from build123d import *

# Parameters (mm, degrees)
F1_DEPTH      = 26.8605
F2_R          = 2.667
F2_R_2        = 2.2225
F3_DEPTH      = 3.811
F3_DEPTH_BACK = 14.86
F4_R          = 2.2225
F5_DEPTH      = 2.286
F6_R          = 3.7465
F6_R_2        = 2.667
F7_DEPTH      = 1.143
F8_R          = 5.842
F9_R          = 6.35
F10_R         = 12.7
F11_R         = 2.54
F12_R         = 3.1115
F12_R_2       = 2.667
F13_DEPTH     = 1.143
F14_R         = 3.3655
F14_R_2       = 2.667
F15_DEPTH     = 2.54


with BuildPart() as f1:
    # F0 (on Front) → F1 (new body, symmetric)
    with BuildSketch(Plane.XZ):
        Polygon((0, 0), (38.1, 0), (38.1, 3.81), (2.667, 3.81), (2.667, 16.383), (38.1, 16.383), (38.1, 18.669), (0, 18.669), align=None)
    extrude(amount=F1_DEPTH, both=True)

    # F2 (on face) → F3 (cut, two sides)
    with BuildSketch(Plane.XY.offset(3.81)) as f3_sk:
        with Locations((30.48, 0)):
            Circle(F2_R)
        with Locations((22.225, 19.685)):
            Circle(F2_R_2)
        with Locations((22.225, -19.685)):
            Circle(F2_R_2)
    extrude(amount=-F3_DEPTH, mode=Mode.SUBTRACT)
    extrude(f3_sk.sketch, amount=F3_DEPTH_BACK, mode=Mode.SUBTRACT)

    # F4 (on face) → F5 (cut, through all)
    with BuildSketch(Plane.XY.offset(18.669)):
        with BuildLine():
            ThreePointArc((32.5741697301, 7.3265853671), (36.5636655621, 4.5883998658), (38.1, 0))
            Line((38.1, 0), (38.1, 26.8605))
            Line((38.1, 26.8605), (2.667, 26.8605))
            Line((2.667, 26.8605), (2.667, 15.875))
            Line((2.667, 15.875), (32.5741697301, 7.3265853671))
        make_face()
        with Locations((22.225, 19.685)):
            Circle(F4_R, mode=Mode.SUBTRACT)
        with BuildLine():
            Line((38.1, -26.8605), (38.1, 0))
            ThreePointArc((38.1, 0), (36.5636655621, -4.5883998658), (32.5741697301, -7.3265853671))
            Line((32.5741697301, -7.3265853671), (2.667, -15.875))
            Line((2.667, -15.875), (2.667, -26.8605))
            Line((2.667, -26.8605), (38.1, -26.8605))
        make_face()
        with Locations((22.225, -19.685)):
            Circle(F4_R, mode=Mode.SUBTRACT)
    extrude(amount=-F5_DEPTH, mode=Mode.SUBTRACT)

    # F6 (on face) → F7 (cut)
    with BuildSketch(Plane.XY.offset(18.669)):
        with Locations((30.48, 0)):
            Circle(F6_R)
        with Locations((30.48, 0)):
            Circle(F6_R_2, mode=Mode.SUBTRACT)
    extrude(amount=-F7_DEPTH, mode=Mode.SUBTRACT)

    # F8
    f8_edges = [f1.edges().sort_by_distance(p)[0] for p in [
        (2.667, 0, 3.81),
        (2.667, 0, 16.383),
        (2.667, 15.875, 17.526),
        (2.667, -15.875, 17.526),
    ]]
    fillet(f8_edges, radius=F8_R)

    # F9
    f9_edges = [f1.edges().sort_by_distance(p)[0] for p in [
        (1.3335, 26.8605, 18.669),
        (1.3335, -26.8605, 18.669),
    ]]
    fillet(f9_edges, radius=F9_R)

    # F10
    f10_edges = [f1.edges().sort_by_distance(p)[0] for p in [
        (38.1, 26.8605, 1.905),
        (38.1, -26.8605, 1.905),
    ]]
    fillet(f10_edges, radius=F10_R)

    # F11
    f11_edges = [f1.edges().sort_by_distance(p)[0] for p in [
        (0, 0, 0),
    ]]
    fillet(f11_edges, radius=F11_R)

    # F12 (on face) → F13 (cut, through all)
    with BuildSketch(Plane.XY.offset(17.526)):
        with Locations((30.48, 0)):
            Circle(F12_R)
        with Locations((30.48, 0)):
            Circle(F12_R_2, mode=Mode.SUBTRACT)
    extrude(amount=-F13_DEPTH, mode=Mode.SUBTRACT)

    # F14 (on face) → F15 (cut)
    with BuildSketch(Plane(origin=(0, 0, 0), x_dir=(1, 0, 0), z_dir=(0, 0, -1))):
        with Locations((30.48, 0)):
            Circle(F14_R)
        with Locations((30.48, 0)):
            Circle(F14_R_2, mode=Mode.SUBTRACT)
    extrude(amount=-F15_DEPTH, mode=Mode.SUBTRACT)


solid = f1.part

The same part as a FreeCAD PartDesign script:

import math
import FreeCAD as App
import Part
import Sketcher

V = App.Vector
Q = App.Units.Quantity


def edges_at(feature, points):
    """Names of the edges that pass closest to the given points."""
    edges = feature.Shape.Edges
    near = lambda p: min(range(len(edges)), key=lambda i: edges[i].distToShape(Part.Vertex(*p))[0])
    return sorted({f"Edge{near(p) + 1}" for p in points})

doc = App.newDocument("Part")
body = doc.addObject("PartDesign::Body", "Body")

sketch1 = body.newObject("Sketcher::SketchObject", "Sketch")
sketch1.AttachmentSupport = (doc.getObject("XZ_Plane"), [""])
sketch1.MapMode = "FlatFace"
sketch1.addGeometry([
    Part.LineSegment(V(0, 0, 0), V(38.1, 0, 0)),
    Part.LineSegment(V(38.1, 0, 0), V(38.1, 3.81, 0)),
    Part.LineSegment(V(38.1, 3.81, 0), V(2.667, 3.81, 0)),
    Part.LineSegment(V(2.667, 3.81, 0), V(2.667, 16.383, 0)),
    Part.LineSegment(V(2.667, 16.383, 0), V(38.1, 16.383, 0)),
    Part.LineSegment(V(38.1, 16.383, 0), V(38.1, 18.669, 0)),
    Part.LineSegment(V(38.1, 18.669, 0), V(0, 18.669, 0)),
    Part.LineSegment(V(0, 18.669, 0), V(0, 0, 0)),
], False)
sketch1.addConstraint([
    Sketcher.Constraint("Coincident", 0, 2, 1, 1),
    Sketcher.Constraint("Coincident", 1, 2, 2, 1),
    Sketcher.Constraint("Coincident", 2, 2, 3, 1),
    Sketcher.Constraint("Coincident", 3, 2, 4, 1),
    Sketcher.Constraint("Coincident", 4, 2, 5, 1),
    Sketcher.Constraint("Coincident", 5, 2, 6, 1),
    Sketcher.Constraint("Coincident", 6, 2, 7, 1),
    Sketcher.Constraint("Coincident", 7, 2, 0, 1),
    Sketcher.Constraint("Horizontal", 0),
    Sketcher.Constraint("Vertical", 1),
    Sketcher.Constraint("Horizontal", 2),
    Sketcher.Constraint("Vertical", 3),
    Sketcher.Constraint("Horizontal", 4),
    Sketcher.Constraint("Vertical", 5),
    Sketcher.Constraint("Horizontal", 6),
    Sketcher.Constraint("Vertical", 7),
    Sketcher.Constraint("Coincident", 7, 2, -1, 1),
    Sketcher.Constraint("Vertical", 1, 2, 4, 2),
    Sketcher.Constraint("DistanceX", 0, 1, 0, 2, Q("1.5 in")),
    Sketcher.Constraint("DistanceY", 1, 1, 1, 2, Q("0.15 in")),
    Sketcher.Constraint("DistanceY", 5, 1, 5, 2, Q("0.09 in")),
    Sketcher.Constraint("DistanceX", 2, 2, 2, 1, Q("1.395 in")),
    Sketcher.Constraint("DistanceY", 3, 1, 3, 2, Q("0.495 in")),
])
pad1 = body.newObject("PartDesign::Pad", "Pad")
pad1.Profile = sketch1
pad1.Length = Q("2.115 in")
pad1.Midplane = True

sketch2 = body.newObject("Sketcher::SketchObject", "Sketch001")
sketch2.AttachmentSupport = (doc.getObject("XY_Plane"), [""])
sketch2.MapMode = "FlatFace"
sketch2.AttachmentOffset = App.Placement(V(0, 0, 0.15 * 25.4), App.Rotation())
sketch2.addGeometry([
    Part.Circle(V(30.48, 0, 0), V(0, 0, 1), 2.667),
    Part.Circle(V(22.225, 19.685, 0), V(0, 0, 1), 2.2225),
    Part.Circle(V(22.225, -19.685, 0), V(0, 0, 1), 2.2225),
], False)
sketch2.addConstraint([
    Sketcher.Constraint("Equal", 1, 2),
    Sketcher.Constraint("Symmetric", 1, 3, 2, 3, -1),
    Sketcher.Constraint("PointOnObject", 0, 3, -1),
    Sketcher.Constraint("Diameter", 0, Q("0.21 in")),
    Sketcher.Constraint("Diameter", 1, Q("0.175 in")),
    Sketcher.Constraint("DistanceX", -1, 1, 0, 3, Q("1.2 in")),
    Sketcher.Constraint("DistanceY", 2, 3, 1, 3, Q("1.55 in")),
    Sketcher.Constraint("DistanceX", -1, 1, 1, 3, Q("0.875 in")),
])
pocket1 = body.newObject("PartDesign::Pocket", "Pocket")
pocket1.Profile = sketch2
pocket1.Type = "ThroughAll"
pocket1.Midplane = True

sketch3 = body.newObject("Sketcher::SketchObject", "Sketch002")
sketch3.AttachmentSupport = (doc.getObject("XY_Plane"), [""])
sketch3.MapMode = "FlatFace"
sketch3.AttachmentOffset = App.Placement(V(0, 0, 0.735 * 25.4), App.Rotation())
sketch3.addGeometry([
    Part.ArcOfCircle(Part.Circle(V(30.48, 0, 0), V(0, 0, 1), 7.62), math.radians(0), math.radians(74.048389)),
    Part.LineSegment(V(38.1, 0, 0), V(38.1, 26.8605, 0)),
    Part.LineSegment(V(38.1, 26.8605, 0), V(2.667, 26.8605, 0)),
    Part.LineSegment(V(2.667, 26.8605, 0), V(2.667, 15.875, 0)),
    Part.LineSegment(V(2.667, 15.875, 0), V(32.57417, 7.326585, 0)),
    Part.Circle(V(22.225, 19.685, 0), V(0, 0, 1), 2.2225),
    Part.LineSegment(V(38.1, -26.8605, 0), V(38.1, 0, 0)),
    Part.ArcOfCircle(Part.Circle(V(30.48, 0, 0), V(0, 0, 1), 7.62), math.radians(-74.048389), math.radians(0)),
    Part.LineSegment(V(32.57417, -7.326585, 0), V(2.667, -15.875, 0)),
    Part.LineSegment(V(2.667, -15.875, 0), V(2.667, -26.8605, 0)),
    Part.LineSegment(V(2.667, -26.8605, 0), V(38.1, -26.8605, 0)),
    Part.Circle(V(22.225, -19.685, 0), V(0, 0, 1), 2.2225),
], False)
sketch3.addConstraint([
    Sketcher.Constraint("Tangent", 0, 1, 1, 1),
    Sketcher.Constraint("Coincident", 1, 2, 2, 1),
    Sketcher.Constraint("Coincident", 2, 2, 3, 1),
    Sketcher.Constraint("Coincident", 3, 2, 4, 1),
    Sketcher.Constraint("Tangent", 4, 2, 0, 2),
    Sketcher.Constraint("Tangent", 6, 2, 7, 2),
    Sketcher.Constraint("Tangent", 7, 1, 8, 1),
    Sketcher.Constraint("Coincident", 8, 2, 9, 1),
    Sketcher.Constraint("Coincident", 9, 2, 10, 1),
    Sketcher.Constraint("Coincident", 10, 2, 6, 1),
    Sketcher.Constraint("Vertical", 1),
    Sketcher.Constraint("Horizontal", 2),
    Sketcher.Constraint("Vertical", 3),
    Sketcher.Constraint("Vertical", 6),
    Sketcher.Constraint("Vertical", 9),
    Sketcher.Constraint("Horizontal", 10),
    Sketcher.Constraint("Coincident", 7, 3, 0, 3),
    Sketcher.Constraint("Equal", 0, 7),
    Sketcher.Constraint("Equal", 5, 11),
    Sketcher.Constraint("Symmetric", 5, 3, 11, 3, -1),
    Sketcher.Constraint("Symmetric", 4, 2, 7, 1, -1),
    Sketcher.Constraint("Symmetric", 2, 2, 9, 2, -1),
    Sketcher.Constraint("Radius", 0, Q("0.3 in")),
    Sketcher.Constraint("Diameter", 5, Q("0.175 in")),
    Sketcher.Constraint("DistanceX", -1, 1, 0, 3, Q("1.2 in")),
    Sketcher.Constraint("DistanceX", 2, 2, 2, 1, Q("1.395 in")),
    Sketcher.Constraint("DistanceY", 11, 3, 5, 3, Q("1.55 in")),
    Sketcher.Constraint("DistanceX", 2, 2, 5, 3, Q("0.77 in")),
    Sketcher.Constraint("DistanceY", 3, 2, 5, 3, Q("0.15 in")),
    Sketcher.Constraint("DistanceY", 1, 1, 1, 2, Q("1.0575 in")),
])
pocket2 = body.newObject("PartDesign::Pocket", "Pocket001")
pocket2.Profile = sketch3
pocket2.Length = Q("0.09 in")

sketch4 = body.newObject("Sketcher::SketchObject", "Sketch003")
sketch4.AttachmentSupport = (doc.getObject("XY_Plane"), [""])
sketch4.MapMode = "FlatFace"
sketch4.AttachmentOffset = App.Placement(V(0, 0, 0.735 * 25.4), App.Rotation())
sketch4.addGeometry([
    Part.Circle(V(30.48, 0, 0), V(0, 0, 1), 3.7465),
    Part.Circle(V(30.48, 0, 0), V(0, 0, 1), 2.667),
], False)
sketch4.addConstraint([
    Sketcher.Constraint("Coincident", 1, 3, 0, 3),
    Sketcher.Constraint("PointOnObject", 0, 3, -1),
    Sketcher.Constraint("Diameter", 1, Q("0.21 in")),
    Sketcher.Constraint("Diameter", 0, Q("0.295 in")),
    Sketcher.Constraint("DistanceX", -1, 1, 0, 3, Q("1.2 in")),
])
pocket3 = body.newObject("PartDesign::Pocket", "Pocket002")
pocket3.Profile = sketch4
pocket3.Length = Q("0.045 in")
doc.recompute()

fillet = body.newObject("PartDesign::Fillet", "Fillet")
fillet.Base = (pocket3, edges_at(pocket3, [
    (2.667, 0, 3.81),
    (2.667, 0, 16.383),
    (2.667, 15.875, 17.526),
    (2.667, -15.875, 17.526),
]))
fillet.Radius = Q("0.23 in")
doc.recompute()

fillet2 = body.newObject("PartDesign::Fillet", "Fillet001")
fillet2.Base = (fillet, edges_at(fillet, [(1.333, 26.86, 18.669), (1.333, -26.86, 18.669)]))
fillet2.Radius = Q("0.25 in")
doc.recompute()

fillet3 = body.newObject("PartDesign::Fillet", "Fillet002")
fillet3.Base = (fillet2, edges_at(fillet2, [(38.1, 26.86, 1.905), (38.1, -26.86, 1.905)]))
fillet3.Radius = Q("0.5 in")
doc.recompute()

fillet4 = body.newObject("PartDesign::Fillet", "Fillet003")
fillet4.Base = (fillet3, edges_at(fillet3, [(0, 0, 0)]))
fillet4.Radius = Q("0.1 in")

sketch5 = body.newObject("Sketcher::SketchObject", "Sketch004")
sketch5.AttachmentSupport = (doc.getObject("XY_Plane"), [""])
sketch5.MapMode = "FlatFace"
sketch5.AttachmentOffset = App.Placement(V(0, 0, 0.69 * 25.4), App.Rotation())
sketch5.addGeometry([
    Part.Circle(V(30.48, 0, 0), V(0, 0, 1), 3.1115),
    Part.Circle(V(30.48, 0, 0), V(0, 0, 1), 2.667),
], False)
sketch5.addConstraint([
    Sketcher.Constraint("Coincident", 1, 3, 0, 3),
    Sketcher.Constraint("PointOnObject", 0, 3, -1),
    Sketcher.Constraint("Diameter", 1, Q("0.21 in")),
    Sketcher.Constraint("Diameter", 0, Q("0.245 in")),
    Sketcher.Constraint("DistanceX", -1, 1, 0, 3, Q("1.2 in")),
])
pocket4 = body.newObject("PartDesign::Pocket", "Pocket003")
pocket4.Profile = sketch5
pocket4.Length = Q("0.045 in")

sketch6 = body.newObject("Sketcher::SketchObject", "Sketch005")
sketch6.AttachmentSupport = (doc.getObject("XY_Plane"), [""])
sketch6.MapMode = "FlatFace"
sketch6.addGeometry([
    Part.Circle(V(30.48, 0, 0), V(0, 0, 1), 3.3655),
    Part.Circle(V(30.48, 0, 0), V(0, 0, 1), 2.667),
], False)
sketch6.addConstraint([
    Sketcher.Constraint("Coincident", 1, 3, 0, 3),
    Sketcher.Constraint("PointOnObject", 0, 3, -1),
    Sketcher.Constraint("Diameter", 1, Q("0.21 in")),
    Sketcher.Constraint("Diameter", 0, Q("0.265 in")),
    Sketcher.Constraint("DistanceX", -1, 1, 0, 3, Q("1.2 in")),
])
pocket5 = body.newObject("PartDesign::Pocket", "Pocket004")
pocket5.Profile = sketch6
pocket5.Length = Q("0.1 in")
pocket5.Reversed = True

doc.recompute()
